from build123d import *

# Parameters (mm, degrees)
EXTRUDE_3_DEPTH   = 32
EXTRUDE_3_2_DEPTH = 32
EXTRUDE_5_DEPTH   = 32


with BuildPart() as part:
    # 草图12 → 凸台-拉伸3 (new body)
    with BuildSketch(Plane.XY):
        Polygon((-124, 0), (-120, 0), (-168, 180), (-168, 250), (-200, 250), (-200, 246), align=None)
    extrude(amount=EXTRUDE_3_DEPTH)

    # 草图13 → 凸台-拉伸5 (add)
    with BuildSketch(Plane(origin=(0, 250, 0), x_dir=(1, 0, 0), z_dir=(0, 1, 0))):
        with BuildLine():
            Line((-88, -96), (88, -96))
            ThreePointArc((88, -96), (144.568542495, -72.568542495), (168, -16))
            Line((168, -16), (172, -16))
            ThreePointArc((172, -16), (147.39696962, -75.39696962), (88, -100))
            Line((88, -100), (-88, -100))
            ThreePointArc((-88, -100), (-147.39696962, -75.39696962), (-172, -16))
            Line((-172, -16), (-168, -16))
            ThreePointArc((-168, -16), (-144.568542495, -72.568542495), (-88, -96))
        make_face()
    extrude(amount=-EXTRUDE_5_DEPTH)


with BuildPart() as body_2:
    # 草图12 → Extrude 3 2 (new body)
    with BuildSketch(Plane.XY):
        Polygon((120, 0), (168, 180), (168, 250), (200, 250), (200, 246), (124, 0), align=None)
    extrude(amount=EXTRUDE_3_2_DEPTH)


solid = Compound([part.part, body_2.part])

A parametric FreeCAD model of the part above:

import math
import FreeCAD as App
import Part
import Sketcher
from FreeCAD import Vector


def add_polygon(sketch, points):
    """Adds a closed chain of lines whose ends are joined by coincident constraints."""
    first, n = sketch.GeometryCount, len(points)
    for a, b in zip(points, points[1:] + points[:1]):
        sketch.addGeometry(Part.LineSegment(App.Vector(*a, 0), App.Vector(*b, 0)), False)
    for i in range(n):
        sketch.addConstraint(Sketcher.Constraint("Coincident", first + i, 2, first + (i + 1) % n, 1))

doc = App.newDocument("Part")
params = doc.addObject("Spreadsheet::Sheet", "Params")
for row, (alias, value) in enumerate([
    ("sketch1_width", "4 mm"),
    ("sketch1_width2", "32 mm"),
    ("sketch1_height", "70 mm"),
    ("pad1_length", "32 mm"),
    ("sketch2_radius", "80 mm"),
    ("sketch2_radius2", "84 mm"),
    ("sketch2_width", "176 mm"),
    ("pad2_length", "32 mm"),
    ("sketch3_width", "4 mm"),
    ("sketch3_width2", "32 mm"),
    ("sketch3_height", "70 mm"),
    ("pad3_length", "32 mm"),
], start=1):
    params.set(f"A{row}", alias)
    params.set(f"B{row}", "=" + value)
    params.setAlias(f"B{row}", alias)

body = doc.addObject("PartDesign::Body", "Body")

# Sketch on XY plane
sketch1 = body.newObject("Sketcher::SketchObject", "Sketch")
sketch1.AttachmentSupport = (doc.getObject("XY_Plane"), [""])
sketch1.MapMode = "FlatFace"
add_polygon(sketch1, [(-124, 0), (-120, 0), (-168, 180), (-168, 250), (-200, 250), (-200, 246)])  # lines 0-5
sketch1.addConstraint(Sketcher.Constraint("Horizontal", 0))
sketch1.addConstraint(Sketcher.Constraint("Vertical", 2))
sketch1.addConstraint(Sketcher.Constraint("Horizontal", 3))
sketch1.addConstraint(Sketcher.Constraint("Vertical", 4))
sketch1.addConstraint(Sketcher.Constraint("PointOnObject", 0, 2, -1))
sketch1.addConstraint(Sketcher.Constraint("Equal", 0, 4))
sketch1.addConstraint(Sketcher.Constraint("DistanceX", 0, 1, 0, 2, 4.0))
sketch1.addConstraint(Sketcher.Constraint("DistanceX", 3, 2, 3, 1, 32.0))
sketch1.addConstraint(Sketcher.Constraint("DistanceY", 2, 1, 2, 2, 70.0))
sketch1.addConstraint(Sketcher.Constraint("DistanceX", 0, 2, -1, 1, 120.0))
sketch1.addConstraint(Sketcher.Constraint("DistanceX", 1, 2, -1, 1, 168.0))
sketch1.addConstraint(Sketcher.Constraint("DistanceY", -1, 1, 1, 2, 180.0))
sketch1.setExpression("Constraints[12]", "Params.sketch1_width")
sketch1.setExpression("Constraints[13]", "Params.sketch1_width2")
sketch1.setExpression("Constraints[14]", "Params.sketch1_height")
pad1 = body.newObject("PartDesign::Pad", "Pad")
pad1.Profile = sketch1
pad1.setExpression("Length", "Params.pad1_length")

# Sketch on XZ plane
sketch2 = body.newObject("Sketcher::SketchObject", "Sketch001")
sketch2.AttachmentSupport = (doc.getObject("XZ_Plane"), [""])
sketch2.MapMode = "FlatFace"
sketch2.AttachmentOffset = App.Placement(Vector(0, 0, -250), App.Rotation())
sketch2.addGeometry(Part.LineSegment(Vector(88, 96, 0), Vector(-88, 96, 0)), False)
sketch2.addGeometry(Part.ArcOfCircle(Part.Circle(Vector(-88, 16, 0), Vector(0, 0, 1), 80), math.radians(90), math.radians(180)), False)
sketch2.addGeometry(Part.LineSegment(Vector(-168, 16, 0), Vector(-172, 16, 0)), False)
sketch2.addGeometry(Part.ArcOfCircle(Part.Circle(Vector(-88, 16, 0), Vector(0, 0, 1), 84), math.radians(90), math.radians(180)), False)
sketch2.addGeometry(Part.LineSegment(Vector(-88, 100, 0), Vector(88, 100, 0)), False)
sketch2.addGeometry(Part.ArcOfCircle(Part.Circle(Vector(88, 16, 0), Vector(0, 0, 1), 84), math.radians(0), math.radians(90)), False)
sketch2.addGeometry(Part.LineSegment(Vector(172, 16, 0), Vector(168, 16, 0)), False)
sketch2.addGeometry(Part.ArcOfCircle(Part.Circle(Vector(88, 16, 0), Vector(0, 0, 1), 80), math.radians(0), math.radians(90)), False)
sketch2.addConstraint(Sketcher.Constraint("Tangent", 0, 2, 1, 1))
sketch2.addConstraint(Sketcher.Constraint("Coincident", 1, 2, 2, 1))
sketch2.addConstraint(Sketcher.Constraint("Coincident", 2, 2, 3, 2))
sketch2.addConstraint(Sketcher.Constraint("Tangent", 3, 1, 4, 1))
sketch2.addConstraint(Sketcher.Constraint("Tangent", 4, 2, 5, 2))
sketch2.addConstraint(Sketcher.Constraint("Coincident", 5, 1, 6, 1))
sketch2.addConstraint(Sketcher.Constraint("Coincident", 6, 2, 7, 1))
sketch2.addConstraint(Sketcher.Constraint("Tangent", 7, 2, 0, 1))
sketch2.addConstraint(Sketcher.Constraint("Horizontal", 0))
sketch2.addConstraint(Sketcher.Constraint("Horizontal", 2))
sketch2.addConstraint(Sketcher.Constraint("Horizontal", 4))
sketch2.addConstraint(Sketcher.Constraint("Horizontal", 6))
sketch2.addConstraint(Sketcher.Constraint("Coincident", 3, 3, 1, 3))
sketch2.addConstraint(Sketcher.Constraint("Coincident", 7, 3, 5, 3))
sketch2.addConstraint(Sketcher.Constraint("Equal", 3, 5))
sketch2.addConstraint(Sketcher.Constraint("Symmetric", 2, 2, 5, 1, -2))
sketch2.addConstraint(Sketcher.Constraint("Horizontal", 7, 3, 1, 2))
sketch2.addConstraint(Sketcher.Constraint("Radius", 1, 80.0))
sketch2.addConstraint(Sketcher.Constraint("Radius", 3, 84.0))
sketch2.addConstraint(Sketcher.Constraint("DistanceX", 0, 2, 0, 1, 176.0))
sketch2.addConstraint(Sketcher.Constraint("DistanceY", -1, 1, 1, 3, 16.0))
sketch2.setExpression("Constraints[17]", "Params.sketch2_radius")
sketch2.setExpression("Constraints[18]", "Params.sketch2_radius2")
sketch2.setExpression("Constraints[19]", "Params.sketch2_width")
pad2 = body.newObject("PartDesign::Pad", "Pad001")
pad2.Profile = sketch2
pad2.setExpression("Length", "Params.pad2_length")
body2 = doc.addObject("PartDesign::Body", "Body001")

# Sketch on XY plane
sketch3 = body2.newObject("Sketcher::SketchObject", "Sketch002")
sketch3.AttachmentSupport = (doc.getObject("XY_Plane001"), [""])
sketch3.MapMode = "FlatFace"
add_polygon(sketch3, [(168, 180), (120, 0), (124, 0), (200, 246), (200, 250), (168, 250)])  # lines 0-5
sketch3.addConstraint(Sketcher.Constraint("Horizontal", 1))
sketch3.addConstraint(Sketcher.Constraint("Vertical", 3))
sketch3.addConstraint(Sketcher.Constraint("Horizontal", 4))
sketch3.addConstraint(Sketcher.Constraint("Vertical", 5))
sketch3.addConstraint(Sketcher.Constraint("PointOnObject", 0, 2, -1))
sketch3.addConstraint(Sketcher.Constraint("Equal", 1, 3))
sketch3.addConstraint(Sketcher.Constraint("DistanceX", 1, 1, 1, 2, 4.0))
sketch3.addConstraint(Sketcher.Constraint("DistanceX", 4, 2, 4, 1, 32.0))
sketch3.addConstraint(Sketcher.Constraint("DistanceY", 5, 2, 5, 1, 70.0))
sketch3.addConstraint(Sketcher.Constraint("DistanceX", -1, 1, 0, 2, 120.0))
sketch3.addConstraint(Sketcher.Constraint("DistanceX", -1, 1, 2, 2, 200.0))
sketch3.addConstraint(Sketcher.Constraint("DistanceY", -1, 1, 2, 2, 246.0))
sketch3.setExpression("Constraints[12]", "Params.sketch3_width")
sketch3.setExpression("Constraints[13]", "Params.sketch3_width2")
sketch3.setExpression("Constraints[14]", "Params.sketch3_height")
pad3 = body2.newObject("PartDesign::Pad", "Pad002")
pad3.Profile = sketch3
pad3.setExpression("Length", "Params.pad3_length")

doc.recompute()
